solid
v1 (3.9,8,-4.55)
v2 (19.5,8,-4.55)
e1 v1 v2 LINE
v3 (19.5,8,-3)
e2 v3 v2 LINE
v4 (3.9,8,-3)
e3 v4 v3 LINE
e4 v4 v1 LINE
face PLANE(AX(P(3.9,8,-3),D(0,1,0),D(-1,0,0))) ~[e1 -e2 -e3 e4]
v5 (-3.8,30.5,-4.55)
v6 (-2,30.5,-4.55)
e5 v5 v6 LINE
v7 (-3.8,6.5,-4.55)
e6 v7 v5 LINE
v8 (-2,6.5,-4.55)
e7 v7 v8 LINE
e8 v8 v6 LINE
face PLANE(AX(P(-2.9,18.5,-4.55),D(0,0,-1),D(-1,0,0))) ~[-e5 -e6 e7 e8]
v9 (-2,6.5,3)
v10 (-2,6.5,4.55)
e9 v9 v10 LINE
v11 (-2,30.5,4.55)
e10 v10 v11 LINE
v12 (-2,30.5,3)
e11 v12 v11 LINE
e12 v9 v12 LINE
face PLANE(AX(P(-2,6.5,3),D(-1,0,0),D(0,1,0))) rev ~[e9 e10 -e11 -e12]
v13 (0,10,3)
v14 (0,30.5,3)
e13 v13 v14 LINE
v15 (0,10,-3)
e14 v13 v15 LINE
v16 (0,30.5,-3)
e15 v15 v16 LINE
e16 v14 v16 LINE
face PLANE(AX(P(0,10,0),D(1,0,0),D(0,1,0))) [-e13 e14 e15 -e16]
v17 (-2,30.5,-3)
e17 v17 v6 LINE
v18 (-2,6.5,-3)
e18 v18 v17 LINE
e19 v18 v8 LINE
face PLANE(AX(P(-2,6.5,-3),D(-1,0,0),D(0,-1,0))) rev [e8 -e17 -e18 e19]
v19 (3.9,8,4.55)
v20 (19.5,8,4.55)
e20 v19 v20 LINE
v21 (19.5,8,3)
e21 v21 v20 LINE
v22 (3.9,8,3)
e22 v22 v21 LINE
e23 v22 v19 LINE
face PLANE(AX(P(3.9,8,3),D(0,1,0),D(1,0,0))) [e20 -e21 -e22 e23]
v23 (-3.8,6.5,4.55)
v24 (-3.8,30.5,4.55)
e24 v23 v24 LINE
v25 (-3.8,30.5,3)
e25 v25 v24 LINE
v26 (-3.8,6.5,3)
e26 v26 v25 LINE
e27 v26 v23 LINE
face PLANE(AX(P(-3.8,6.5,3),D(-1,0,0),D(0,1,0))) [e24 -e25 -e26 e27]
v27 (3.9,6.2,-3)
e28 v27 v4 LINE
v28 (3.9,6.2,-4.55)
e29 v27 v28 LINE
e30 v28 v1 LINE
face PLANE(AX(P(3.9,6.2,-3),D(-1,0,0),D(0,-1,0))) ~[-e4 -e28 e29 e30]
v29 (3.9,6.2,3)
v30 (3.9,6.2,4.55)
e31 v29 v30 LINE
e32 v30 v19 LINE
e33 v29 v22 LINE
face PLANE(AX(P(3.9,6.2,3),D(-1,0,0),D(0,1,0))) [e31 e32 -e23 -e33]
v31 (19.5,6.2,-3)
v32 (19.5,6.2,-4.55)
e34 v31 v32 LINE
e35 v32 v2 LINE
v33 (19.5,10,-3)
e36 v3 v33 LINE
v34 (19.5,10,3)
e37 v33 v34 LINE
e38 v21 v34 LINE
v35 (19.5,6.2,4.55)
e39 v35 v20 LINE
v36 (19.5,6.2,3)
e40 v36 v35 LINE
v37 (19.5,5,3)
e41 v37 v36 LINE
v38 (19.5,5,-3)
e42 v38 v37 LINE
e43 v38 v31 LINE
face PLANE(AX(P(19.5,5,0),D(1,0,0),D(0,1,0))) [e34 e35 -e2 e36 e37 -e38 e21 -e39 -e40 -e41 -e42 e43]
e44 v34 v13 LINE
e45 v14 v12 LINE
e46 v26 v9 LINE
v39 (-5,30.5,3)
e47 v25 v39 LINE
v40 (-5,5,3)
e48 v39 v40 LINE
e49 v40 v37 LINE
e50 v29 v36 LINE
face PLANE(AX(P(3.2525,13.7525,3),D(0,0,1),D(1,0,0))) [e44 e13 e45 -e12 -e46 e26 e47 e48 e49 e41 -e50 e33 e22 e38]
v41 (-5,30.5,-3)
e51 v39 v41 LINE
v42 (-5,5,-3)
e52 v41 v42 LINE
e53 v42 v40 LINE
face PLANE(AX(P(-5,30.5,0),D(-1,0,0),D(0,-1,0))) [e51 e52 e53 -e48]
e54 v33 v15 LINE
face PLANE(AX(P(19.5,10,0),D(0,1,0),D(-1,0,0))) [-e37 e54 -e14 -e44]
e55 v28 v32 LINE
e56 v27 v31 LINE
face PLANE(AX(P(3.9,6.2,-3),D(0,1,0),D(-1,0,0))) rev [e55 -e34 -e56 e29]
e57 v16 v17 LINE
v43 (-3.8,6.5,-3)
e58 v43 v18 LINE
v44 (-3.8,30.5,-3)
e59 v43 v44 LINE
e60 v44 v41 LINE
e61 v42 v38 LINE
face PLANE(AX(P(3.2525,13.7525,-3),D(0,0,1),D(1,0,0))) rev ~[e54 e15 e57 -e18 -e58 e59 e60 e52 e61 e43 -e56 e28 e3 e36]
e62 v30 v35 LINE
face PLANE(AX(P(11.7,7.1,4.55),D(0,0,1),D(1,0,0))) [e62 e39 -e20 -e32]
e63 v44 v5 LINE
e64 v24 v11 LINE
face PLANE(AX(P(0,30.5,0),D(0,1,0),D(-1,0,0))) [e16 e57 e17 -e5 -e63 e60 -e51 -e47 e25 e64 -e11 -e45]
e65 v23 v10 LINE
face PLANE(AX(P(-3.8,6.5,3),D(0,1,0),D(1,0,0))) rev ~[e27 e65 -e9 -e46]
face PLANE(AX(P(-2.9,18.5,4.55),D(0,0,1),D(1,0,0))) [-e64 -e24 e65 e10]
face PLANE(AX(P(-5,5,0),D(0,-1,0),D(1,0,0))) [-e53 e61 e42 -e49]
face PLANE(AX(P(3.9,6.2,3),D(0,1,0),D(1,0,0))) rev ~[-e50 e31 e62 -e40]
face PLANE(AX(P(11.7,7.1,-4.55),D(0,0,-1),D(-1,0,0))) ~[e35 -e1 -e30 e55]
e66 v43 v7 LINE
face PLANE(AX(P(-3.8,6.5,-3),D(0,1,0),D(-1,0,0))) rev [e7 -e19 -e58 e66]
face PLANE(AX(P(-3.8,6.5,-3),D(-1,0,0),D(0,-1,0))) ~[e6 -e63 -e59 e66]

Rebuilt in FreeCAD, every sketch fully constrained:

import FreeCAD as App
import Part
import Sketcher


def add_polygon(sketch, points):
    """Adds a closed chain of lines whose ends are joined by coincident constraints."""
    first, n = sketch.GeometryCount, len(points)
    for a, b in zip(points, points[1:] + points[:1]):
        sketch.addGeometry(Part.LineSegment(App.Vector(*a, 0), App.Vector(*b, 0)), False)
    for i in range(n):
        sketch.addConstraint(Sketcher.Constraint("Coincident", first + i, 2, first + (i + 1) % n, 1))

doc = App.newDocument("Part")
body = doc.addObject("PartDesign::Body", "Body")

# Sketch on XY plane
sketch1 = body.newObject("Sketcher::SketchObject", "Sketch")
sketch1.AttachmentSupport = (doc.getObject("XY_Plane"), [""])
sketch1.MapMode = "FlatFace"
add_polygon(sketch1, [(-5, 30), (-5, 5), (20, 5), (20, 10), (0, 10), (0, 30)])  # lines 0-5
sketch1.addConstraint([
    Sketcher.Constraint("Vertical", 0),
    Sketcher.Constraint("Horizontal", 1),
    Sketcher.Constraint("Vertical", 2),
    Sketcher.Constraint("Horizontal", 3),
    Sketcher.Constraint("Vertical", 4),
    Sketcher.Constraint("Horizontal", 5),
    Sketcher.Constraint("PointOnObject", 3, 2, -2),
    Sketcher.Constraint("Equal", 5, 2),
    Sketcher.Constraint("DistanceX", 5, 2, 5, 1, 5.0),
    Sketcher.Constraint("DistanceX", 1, 1, 1, 2, 24.5),
    Sketcher.Constraint("DistanceY", 0, 2, 0, 1, 25.5),
    Sketcher.Constraint("DistanceY", -1, 1, 0, 2, 5.0),
])
pad1 = body.newObject("PartDesign::Pad", "Pad")
pad1.Profile = sketch1
pad1.Length = 6
pad1.Midplane = True

# Sketch on XY plane
sketch2 = body.newObject("Sketcher::SketchObject", "Sketch001")
sketch2.AttachmentSupport = (doc.getObject("XY_Plane"), [""])
sketch2.MapMode = "FlatFace"
sketch2.AttachmentOffset = App.Placement(App.Vector(0, 0, 3), App.Rotation())
add_polygon(sketch2, [(-3.8, 30.5), (-3.8, 6.5), (-2, 6.5), (-2, 30.5)])  # lines 0-3
add_polygon(sketch2, [(3.9, 8), (3.9, 6.2), (19.5, 6.2), (19.5, 8)])  # lines 4-7
sketch2.addConstraint([
    Sketcher.Constraint("Vertical", 0),
    Sketcher.Constraint("Horizontal", 1),
    Sketcher.Constraint("Vertical", 2),
    Sketcher.Constraint("Horizontal", 3),
    Sketcher.Constraint("Vertical", 4),
    Sketcher.Constraint("Horizontal", 5),
    Sketcher.Constraint("Vertical", 6),
    Sketcher.Constraint("Horizontal", 7),
    Sketcher.Constraint("Equal", 3, 4),
    Sketcher.Constraint("DistanceY", 0, 2, 0, 1, 24.0),
    Sketcher.Constraint("DistanceX", 1, 1, 1, 2, 1.8),
    Sketcher.Constraint("DistanceX", 5, 1, 5, 2, 15.6),
    Sketcher.Constraint("DistanceX", 1, 2, -1, 1, 2.0),
    Sketcher.Constraint("DistanceY", -1, 1, 6, 2, 8.0),
    Sketcher.Constraint("DistanceY", -1, 1, 0, 2, 6.5),
    Sketcher.Constraint("DistanceX", -1, 1, 4, 2, 3.9),
])
pad2 = body.newObject("PartDesign::Pad", "Pad001")
pad2.Profile = sketch2
pad2.Length = 1.55
doc.recompute()

mirrored = body.newObject("PartDesign::Mirrored", "Mirrored")
mirrored.Originals = [pad2]
mirrored.MirrorPlane = (doc.getObject("XY_Plane"), [""])
body.Tip = mirrored

doc.recompute()
